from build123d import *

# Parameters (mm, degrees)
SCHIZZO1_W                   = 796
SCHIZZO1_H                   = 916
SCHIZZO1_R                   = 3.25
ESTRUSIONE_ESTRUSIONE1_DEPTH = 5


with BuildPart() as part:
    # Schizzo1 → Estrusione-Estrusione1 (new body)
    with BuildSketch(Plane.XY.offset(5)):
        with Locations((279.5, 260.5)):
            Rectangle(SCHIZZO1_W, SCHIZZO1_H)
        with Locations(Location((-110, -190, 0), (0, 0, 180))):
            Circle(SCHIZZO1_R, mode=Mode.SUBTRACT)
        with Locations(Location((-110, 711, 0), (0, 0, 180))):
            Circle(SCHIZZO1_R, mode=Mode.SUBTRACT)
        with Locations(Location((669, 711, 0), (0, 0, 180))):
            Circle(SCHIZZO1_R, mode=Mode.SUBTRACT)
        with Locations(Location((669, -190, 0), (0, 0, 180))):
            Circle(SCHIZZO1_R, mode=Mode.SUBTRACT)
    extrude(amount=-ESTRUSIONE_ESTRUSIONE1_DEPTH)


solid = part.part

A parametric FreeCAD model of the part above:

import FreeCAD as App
import Part
import Sketcher
from FreeCAD import Vector
Q = App.Units.Quantity

doc = App.newDocument("Part")
body = doc.addObject("PartDesign::Body", "Body")

sketch1 = body.newObject("Sketcher::SketchObject", "Sketch")
sketch1.AttachmentSupport = (doc.getObject("XY_Plane"), [""])
sketch1.MapMode = "FlatFace"
sketch1.AttachmentOffset = App.Placement(Vector(0, 0, 5), App.Rotation())
sketch1.addGeometry([
    Part.LineSegment(Vector(-118.5, 718.5, 0), Vector(-118.5, -197.5, 0)),
    Part.LineSegment(Vector(-118.5, -197.5, 0), Vector(677.5, -197.5, 0)),
    Part.LineSegment(Vector(677.5, -197.5, 0), Vector(677.5, 718.5, 0)),
    Part.LineSegment(Vector(677.5, 718.5, 0), Vector(-118.5, 718.5, 0)),
    Part.Circle(Vector(-110, -190, 0), Vector(0, 0, 1), 3.25),
    Part.Circle(Vector(669, -190, 0), Vector(0, 0, 1), 3.25),
    Part.Circle(Vector(-110, 711, 0), Vector(0, 0, 1), 3.25),
    Part.Circle(Vector(669, 711, 0), Vector(0, 0, 1), 3.25),
], False)
sketch1.addConstraint([
    Sketcher.Constraint("Coincident", 0, 2, 1, 1),
    Sketcher.Constraint("Coincident", 1, 2, 2, 1),
    Sketcher.Constraint("Coincident", 2, 2, 3, 1),
    Sketcher.Constraint("Coincident", 3, 2, 0, 1),
    Sketcher.Constraint("Vertical", 0),
    Sketcher.Constraint("Horizontal", 1),
    Sketcher.Constraint("Vertical", 2),
    Sketcher.Constraint("Horizontal", 3),
    Sketcher.Constraint("Equal", 4, 5),
    Sketcher.Constraint("Equal", 5, 6),
    Sketcher.Constraint("Equal", 6, 7),
    Sketcher.Constraint("Horizontal", 4, 3, 5, 3),
    Sketcher.Constraint("Horizontal", 6, 3, 7, 3),
    Sketcher.Constraint("Vertical", 4, 3, 6, 3),
    Sketcher.Constraint("Vertical", 5, 3, 7, 3),
    Sketcher.Constraint("Diameter", 4, Q("6.5 mm")),
    Sketcher.Constraint("DistanceX", 1, 1, 1, 2, Q("796 mm")),
    Sketcher.Constraint("DistanceY", 0, 2, 0, 1, Q("916 mm")),
    Sketcher.Constraint("DistanceX", 4, 3, -1, 1, Q("110 mm")),
    Sketcher.Constraint("DistanceY", 4, 3, -1, 1, Q("190 mm")),
    Sketcher.Constraint("DistanceX", -1, 1, 5, 3, Q("669 mm")),
    Sketcher.Constraint("DistanceY", -1, 1, 6, 3, Q("711 mm")),
    Sketcher.Constraint("DistanceX", 0, 2, -1, 1, Q("118.5 mm")),
    Sketcher.Constraint("DistanceY", 0, 2, -1, 1, Q("197.5 mm")),
])
pad1 = body.newObject("PartDesign::Pad", "Pad")
pad1.Profile = sketch1
pad1.Length = 5
pad1.Reversed = True

doc.recompute()
